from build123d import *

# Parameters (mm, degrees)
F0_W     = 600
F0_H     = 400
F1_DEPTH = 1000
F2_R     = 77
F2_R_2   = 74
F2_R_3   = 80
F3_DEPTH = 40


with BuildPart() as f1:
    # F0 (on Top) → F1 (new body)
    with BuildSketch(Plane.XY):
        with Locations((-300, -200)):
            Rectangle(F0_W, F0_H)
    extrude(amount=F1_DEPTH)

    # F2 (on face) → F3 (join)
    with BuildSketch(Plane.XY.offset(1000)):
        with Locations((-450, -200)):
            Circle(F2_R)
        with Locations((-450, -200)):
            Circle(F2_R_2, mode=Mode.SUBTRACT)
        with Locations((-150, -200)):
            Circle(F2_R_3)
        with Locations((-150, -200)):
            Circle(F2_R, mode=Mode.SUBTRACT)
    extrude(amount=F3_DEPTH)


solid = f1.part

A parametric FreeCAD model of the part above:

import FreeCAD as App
import Part
import Sketcher
from FreeCAD import Vector
Q = App.Units.Quantity


def add_polygon(sketch, points):
    """Adds a closed chain of lines whose ends are joined by coincident constraints."""
    first, n = sketch.GeometryCount, len(points)
    for a, b in zip(points, points[1:] + points[:1]):
        sketch.addGeometry(Part.LineSegment(App.Vector(*a, 0), App.Vector(*b, 0)), False)
    for i in range(n):
        sketch.addConstraint(Sketcher.Constraint("Coincident", first + i, 2, first + (i + 1) % n, 1))

doc = App.newDocument("Part")
body = doc.addObject("PartDesign::Body", "Body")

# Sketch on XY plane
sketch1 = body.newObject("Sketcher::SketchObject", "Sketch")
sketch1.AttachmentSupport = (doc.getObject("XY_Plane"), [""])
sketch1.MapMode = "FlatFace"
add_polygon(sketch1, [(-600, 0), (-600, -400), (0, -400), (0, 0)])  # lines 0-3
sketch1.addConstraint(Sketcher.Constraint("Vertical", 0))
sketch1.addConstraint(Sketcher.Constraint("Horizontal", 1))
sketch1.addConstraint(Sketcher.Constraint("Vertical", 2))
sketch1.addConstraint(Sketcher.Constraint("Horizontal", 3))
sketch1.addConstraint(Sketcher.Constraint("Coincident", 2, 2, -1, 1))
sketch1.addConstraint(Sketcher.Constraint("DistanceX", 1, 1, 1, 2, Q("600 mm")))
sketch1.addConstraint(Sketcher.Constraint("DistanceY", 0, 2, 0, 1, Q("400 mm")))
pad1 = body.newObject("PartDesign::Pad", "Pad")
pad1.Profile = sketch1
pad1.Length = 1000

# Sketch on XY plane
sketch2 = body.newObject("Sketcher::SketchObject", "Sketch001")
sketch2.AttachmentSupport = (doc.getObject("XY_Plane"), [""])
sketch2.MapMode = "FlatFace"
sketch2.AttachmentOffset = App.Placement(Vector(0, 0, 1000), App.Rotation())
sketch2.addGeometry(Part.Circle(Vector(-450, -200, 0), Vector(0, 0, 1), 77), False)
sketch2.addGeometry(Part.Circle(Vector(-450, -200, 0), Vector(0, 0, 1), 74), False)
sketch2.addGeometry(Part.Circle(Vector(-150, -200, 0), Vector(0, 0, 1), 80), False)
sketch2.addGeometry(Part.Circle(Vector(-150, -200, 0), Vector(0, 0, 1), 77), False)
sketch2.addConstraint(Sketcher.Constraint("Coincident", 1, 3, 0, 3))
sketch2.addConstraint(Sketcher.Constraint("Coincident", 3, 3, 2, 3))
sketch2.addConstraint(Sketcher.Constraint("Equal", 0, 3))
sketch2.addConstraint(Sketcher.Constraint("Horizontal", 1, 3, 2, 3))
sketch2.addConstraint(Sketcher.Constraint("Diameter", 0, Q("154 mm")))
sketch2.addConstraint(Sketcher.Constraint("Diameter", 1, Q("148 mm")))
sketch2.addConstraint(Sketcher.Constraint("Diameter", 2, Q("160 mm")))
sketch2.addConstraint(Sketcher.Constraint("DistanceX", 0, 3, -1, 1, Q("450 mm")))
sketch2.addConstraint(Sketcher.Constraint("DistanceY", 0, 3, -1, 1, Q("200 mm")))
sketch2.addConstraint(Sketcher.Constraint("DistanceX", 2, 3, -1, 1, Q("150 mm")))
pad2 = body.newObject("PartDesign::Pad", "Pad001")
pad2.Profile = sketch2
pad2.Length = 40

doc.recompute()
